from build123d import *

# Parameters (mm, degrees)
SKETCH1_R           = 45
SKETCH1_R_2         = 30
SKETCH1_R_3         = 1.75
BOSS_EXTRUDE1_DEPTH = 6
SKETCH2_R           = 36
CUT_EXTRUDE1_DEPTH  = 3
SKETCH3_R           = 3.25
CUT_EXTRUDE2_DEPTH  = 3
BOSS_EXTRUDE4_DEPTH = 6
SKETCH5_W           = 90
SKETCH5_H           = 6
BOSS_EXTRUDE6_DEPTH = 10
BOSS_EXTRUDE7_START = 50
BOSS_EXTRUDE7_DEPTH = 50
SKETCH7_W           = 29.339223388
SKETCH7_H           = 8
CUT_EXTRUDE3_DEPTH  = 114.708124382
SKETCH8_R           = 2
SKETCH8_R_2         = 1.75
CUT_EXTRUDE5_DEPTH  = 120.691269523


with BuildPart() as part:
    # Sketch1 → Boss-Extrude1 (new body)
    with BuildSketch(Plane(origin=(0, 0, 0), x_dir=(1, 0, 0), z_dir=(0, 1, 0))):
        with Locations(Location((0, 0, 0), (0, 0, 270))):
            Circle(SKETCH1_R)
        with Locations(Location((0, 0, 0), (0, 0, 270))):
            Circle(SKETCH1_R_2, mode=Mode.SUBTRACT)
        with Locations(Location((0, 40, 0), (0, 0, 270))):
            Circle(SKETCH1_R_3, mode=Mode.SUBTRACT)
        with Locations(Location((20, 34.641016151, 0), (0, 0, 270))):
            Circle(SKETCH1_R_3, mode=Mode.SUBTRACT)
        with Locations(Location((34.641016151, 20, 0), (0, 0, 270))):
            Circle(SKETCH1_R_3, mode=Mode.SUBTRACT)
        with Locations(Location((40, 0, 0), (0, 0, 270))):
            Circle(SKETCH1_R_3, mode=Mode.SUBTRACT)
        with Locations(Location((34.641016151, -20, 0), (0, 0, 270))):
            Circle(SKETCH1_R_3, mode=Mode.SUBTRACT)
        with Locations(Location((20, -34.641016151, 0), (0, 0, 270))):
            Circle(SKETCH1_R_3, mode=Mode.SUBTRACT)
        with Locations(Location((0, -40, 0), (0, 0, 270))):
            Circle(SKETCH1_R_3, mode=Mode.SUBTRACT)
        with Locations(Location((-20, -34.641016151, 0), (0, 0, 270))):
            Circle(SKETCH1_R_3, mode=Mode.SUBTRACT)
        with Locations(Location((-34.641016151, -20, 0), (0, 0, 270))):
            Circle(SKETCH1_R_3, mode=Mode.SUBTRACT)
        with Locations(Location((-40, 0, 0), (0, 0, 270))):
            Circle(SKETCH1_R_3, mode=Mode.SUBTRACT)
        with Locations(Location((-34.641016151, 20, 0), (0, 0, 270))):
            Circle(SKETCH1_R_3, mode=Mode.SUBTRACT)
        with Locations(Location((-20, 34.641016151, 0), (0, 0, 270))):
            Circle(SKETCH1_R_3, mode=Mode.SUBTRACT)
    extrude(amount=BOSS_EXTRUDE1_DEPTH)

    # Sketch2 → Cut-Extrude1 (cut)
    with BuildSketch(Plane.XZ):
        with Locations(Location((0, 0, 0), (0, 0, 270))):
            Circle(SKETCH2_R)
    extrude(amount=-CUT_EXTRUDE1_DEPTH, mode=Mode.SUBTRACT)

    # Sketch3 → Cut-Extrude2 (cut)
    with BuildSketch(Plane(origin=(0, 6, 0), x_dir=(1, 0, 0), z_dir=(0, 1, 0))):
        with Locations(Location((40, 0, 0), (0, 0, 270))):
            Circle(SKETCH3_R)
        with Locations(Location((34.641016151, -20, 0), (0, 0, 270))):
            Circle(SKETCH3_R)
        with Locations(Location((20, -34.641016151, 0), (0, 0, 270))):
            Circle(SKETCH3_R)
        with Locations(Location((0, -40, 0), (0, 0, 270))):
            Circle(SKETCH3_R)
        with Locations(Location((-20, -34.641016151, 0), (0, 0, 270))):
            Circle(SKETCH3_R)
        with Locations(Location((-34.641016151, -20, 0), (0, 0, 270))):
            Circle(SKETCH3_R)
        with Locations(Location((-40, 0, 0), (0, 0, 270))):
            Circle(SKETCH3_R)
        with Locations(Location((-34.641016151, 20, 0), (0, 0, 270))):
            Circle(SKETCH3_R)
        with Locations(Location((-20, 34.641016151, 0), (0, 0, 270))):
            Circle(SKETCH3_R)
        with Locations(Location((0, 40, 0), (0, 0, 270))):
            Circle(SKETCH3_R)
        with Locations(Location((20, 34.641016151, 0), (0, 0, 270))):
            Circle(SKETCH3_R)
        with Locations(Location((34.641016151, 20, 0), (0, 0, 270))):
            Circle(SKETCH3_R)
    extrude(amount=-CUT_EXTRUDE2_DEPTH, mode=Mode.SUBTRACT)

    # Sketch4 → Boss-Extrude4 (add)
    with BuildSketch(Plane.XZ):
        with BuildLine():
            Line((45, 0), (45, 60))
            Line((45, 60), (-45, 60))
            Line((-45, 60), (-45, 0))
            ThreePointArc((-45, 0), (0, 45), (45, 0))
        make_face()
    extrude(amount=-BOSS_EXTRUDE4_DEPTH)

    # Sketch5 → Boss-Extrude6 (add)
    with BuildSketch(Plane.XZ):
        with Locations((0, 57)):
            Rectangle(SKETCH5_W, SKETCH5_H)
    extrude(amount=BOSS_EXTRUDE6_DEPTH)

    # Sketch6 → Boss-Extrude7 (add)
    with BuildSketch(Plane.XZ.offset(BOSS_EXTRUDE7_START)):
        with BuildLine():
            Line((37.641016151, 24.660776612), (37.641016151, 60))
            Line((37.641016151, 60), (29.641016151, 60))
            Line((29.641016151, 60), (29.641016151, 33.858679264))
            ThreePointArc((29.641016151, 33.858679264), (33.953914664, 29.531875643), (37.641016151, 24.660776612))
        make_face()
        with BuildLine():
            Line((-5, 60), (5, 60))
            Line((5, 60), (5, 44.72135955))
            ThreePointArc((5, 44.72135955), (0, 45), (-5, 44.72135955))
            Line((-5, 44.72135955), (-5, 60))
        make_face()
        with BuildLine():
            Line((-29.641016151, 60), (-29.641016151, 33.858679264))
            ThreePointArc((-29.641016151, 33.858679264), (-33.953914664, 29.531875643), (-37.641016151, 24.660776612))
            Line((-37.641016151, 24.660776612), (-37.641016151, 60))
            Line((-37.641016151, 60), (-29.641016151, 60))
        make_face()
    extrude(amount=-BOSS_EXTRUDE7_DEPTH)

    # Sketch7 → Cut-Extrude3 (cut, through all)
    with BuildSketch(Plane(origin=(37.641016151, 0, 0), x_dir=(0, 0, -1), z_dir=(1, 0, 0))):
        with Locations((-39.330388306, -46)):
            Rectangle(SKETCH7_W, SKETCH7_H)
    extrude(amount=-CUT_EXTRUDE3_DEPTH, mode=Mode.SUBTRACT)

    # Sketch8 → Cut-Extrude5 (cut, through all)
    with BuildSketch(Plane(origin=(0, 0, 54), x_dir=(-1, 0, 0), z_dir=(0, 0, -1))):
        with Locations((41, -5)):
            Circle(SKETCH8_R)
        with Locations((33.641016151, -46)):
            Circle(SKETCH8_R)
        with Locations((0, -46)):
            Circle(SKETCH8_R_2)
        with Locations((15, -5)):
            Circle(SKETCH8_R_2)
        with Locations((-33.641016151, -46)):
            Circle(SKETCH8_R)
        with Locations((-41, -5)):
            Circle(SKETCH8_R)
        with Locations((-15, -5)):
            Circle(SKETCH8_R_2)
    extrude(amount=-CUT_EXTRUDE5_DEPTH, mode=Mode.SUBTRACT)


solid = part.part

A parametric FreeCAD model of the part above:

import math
import FreeCAD as App
import Part
import Sketcher

doc = App.newDocument("Part")
params = doc.addObject("Spreadsheet::Sheet", "Params")
for row, (alias, value) in enumerate([
    ("sketch1_diameter", "90 mm"),
    ("sketch1_diameter2", "60 mm"),
    ("sketch1_diameter3", "3.5 mm"),
    ("pad1_length", "6 mm"),
    ("sketch2_diameter", "72 mm"),
    ("pocket1_length", "3 mm"),
    ("sketch3_diameter", "6.5 mm"),
    ("pocket2_length", "3 mm"),
    ("sketch4_radius", "45 mm"),
    ("sketch4_height", "60 mm"),
    ("pad2_length", "6 mm"),
    ("sketch5_width", "90 mm"),
    ("sketch5_height", "6 mm"),
    ("pad3_length", "10 mm"),
    ("sketch6_radius", "45 mm"),
    ("sketch6_width", "8 mm"),
    ("sketch6_width2", "10 mm"),
    ("pad4_length", "50 mm"),
    ("sketch7_width", "8 mm"),
    ("sketch8_diameter", "4 mm"),
    ("sketch8_diameter2", "3.5 mm"),
], start=1):
    params.set(f"A{row}", alias)
    params.set(f"B{row}", "=" + value)
    params.setAlias(f"B{row}", alias)

body = doc.addObject("PartDesign::Body", "Body")

sketch1 = body.newObject("Sketcher::SketchObject", "Sketch")
sketch1.AttachmentSupport = (doc.getObject("XZ_Plane"), [""])
sketch1.MapMode = "FlatFace"
sketch1.addGeometry(Part.Circle(App.Vector(0, 0, 0), App.Vector(0, 0, 1), 45), False)
sketch1.addGeometry(Part.Circle(App.Vector(-34.641016, -20, 0), App.Vector(0, 0, 1), 1.75), False)
sketch1.addGeometry(Part.Circle(App.Vector(-20, -34.641016, 0), App.Vector(0, 0, 1), 1.75), False)
sketch1.addGeometry(Part.Circle(App.Vector(0, -40, 0), App.Vector(0, 0, 1), 1.75), False)
sketch1.addGeometry(Part.Circle(App.Vector(-40, 0, 0), App.Vector(0, 0, 1), 1.75), False)
sketch1.addGeometry(Part.Circle(App.Vector(-34.641016, 20, 0), App.Vector(0, 0, 1), 1.75), False)
sketch1.addGeometry(Part.Circle(App.Vector(-20, 34.641016, 0), App.Vector(0, 0, 1), 1.75), False)
sketch1.addGeometry(Part.Circle(App.Vector(20, -34.641016, 0), App.Vector(0, 0, 1), 1.75), False)
sketch1.addGeometry(Part.Circle(App.Vector(34.641016, -20, 0), App.Vector(0, 0, 1), 1.75), False)
sketch1.addGeometry(Part.Circle(App.Vector(40, 0, 0), App.Vector(0, 0, 1), 1.75), False)
sketch1.addGeometry(Part.Circle(App.Vector(0, 0, 0), App.Vector(0, 0, 1), 30), False)
sketch1.addGeometry(Part.Circle(App.Vector(0, 40, 0), App.Vector(0, 0, 1), 1.75), False)
sketch1.addGeometry(Part.Circle(App.Vector(20, 34.641016, 0), App.Vector(0, 0, 1), 1.75), False)
sketch1.addGeometry(Part.Circle(App.Vector(34.641016, 20, 0), App.Vector(0, 0, 1), 1.75), False)
sketch1.addConstraint(Sketcher.Constraint("Coincident", 0, 3, -1, 1))
sketch1.addConstraint(Sketcher.Constraint("Coincident", 10, 3, -1, 1))
sketch1.addConstraint(Sketcher.Constraint("Equal", 1, 2))
sketch1.addConstraint(Sketcher.Constraint("Equal", 2, 3))
sketch1.addConstraint(Sketcher.Constraint("Equal", 3, 4))
sketch1.addConstraint(Sketcher.Constraint("Equal", 4, 5))
sketch1.addConstraint(Sketcher.Constraint("Equal", 5, 6))
sketch1.addConstraint(Sketcher.Constraint("Equal", 6, 7))
sketch1.addConstraint(Sketcher.Constraint("Equal", 7, 8))
sketch1.addConstraint(Sketcher.Constraint("Equal", 8, 9))
sketch1.addConstraint(Sketcher.Constraint("Equal", 9, 11))
sketch1.addConstraint(Sketcher.Constraint("Equal", 11, 12))
sketch1.addConstraint(Sketcher.Constraint("Equal", 12, 13))
sketch1.addConstraint(Sketcher.Constraint("Symmetric", 6, 3, 7, 3, -1, 1))
sketch1.addConstraint(Sketcher.Constraint("Symmetric", 5, 3, 8, 3, -1, 1))
sketch1.addConstraint(Sketcher.Constraint("Symmetric", 4, 3, 9, 3, -1, 1))
sketch1.addConstraint(Sketcher.Constraint("Symmetric", 3, 3, 11, 3, -1, 1))
sketch1.addConstraint(Sketcher.Constraint("Symmetric", 2, 3, 12, 3, -1, 1))
sketch1.addConstraint(Sketcher.Constraint("Symmetric", 1, 3, 13, 3, -1, 1))
sketch1.addConstraint(Sketcher.Constraint("Symmetric", 2, 3, 7, 3, -2))
sketch1.addConstraint(Sketcher.Constraint("Symmetric", 1, 3, 8, 3, -2))
sketch1.addConstraint(Sketcher.Constraint("PointOnObject", 3, 3, -2))
sketch1.addConstraint(Sketcher.Constraint("PointOnObject", 4, 3, -1))
sketch1.addConstraint(Sketcher.Constraint("Diameter", 0, 90.0))
sketch1.addConstraint(Sketcher.Constraint("Diameter", 10, 60.0))
sketch1.addConstraint(Sketcher.Constraint("Diameter", 1, 3.5))
sketch1.addConstraint(Sketcher.Constraint("DistanceY", 1, 3, -1, 1, 20.0))
sketch1.addConstraint(Sketcher.Constraint("DistanceX", 2, 3, -1, 1, 20.0))
sketch1.addConstraint(Sketcher.Constraint("DistanceY", 3, 3, -1, 1, 40.0))
sketch1.addConstraint(Sketcher.Constraint("DistanceX", 4, 3, -1, 1, 40.0))
sketch1.addConstraint(Sketcher.Constraint("DistanceX", 1, 3, -1, 1, 34.641016))
sketch1.addConstraint(Sketcher.Constraint("DistanceY", 2, 3, -1, 1, 34.641016))
sketch1.setExpression("Constraints[23]", "Params.sketch1_diameter")
sketch1.setExpression("Constraints[24]", "Params.sketch1_diameter2")
sketch1.setExpression("Constraints[25]", "Params.sketch1_diameter3")
pad1 = body.newObject("PartDesign::Pad", "Pad")
pad1.Profile = sketch1
pad1.setExpression("Length", "Params.pad1_length")
pad1.Reversed = True

sketch2 = body.newObject("Sketcher::SketchObject", "Sketch001")
sketch2.AttachmentSupport = (doc.getObject("XZ_Plane"), [""])
sketch2.MapMode = "FlatFace"
sketch2.addGeometry(Part.Circle(App.Vector(0, 0, 0), App.Vector(0, 0, 1), 36), False)
sketch2.addConstraint(Sketcher.Constraint("Coincident", 0, 3, -1, 1))
sketch2.addConstraint(Sketcher.Constraint("Diameter", 0, 72.0))
sketch2.setExpression("Constraints[1]", "Params.sketch2_diameter")
pocket1 = body.newObject("PartDesign::Pocket", "Pocket")
pocket1.Profile = sketch2
pocket1.setExpression("Length", "Params.pocket1_length")

sketch3 = body.newObject("Sketcher::SketchObject", "Sketch002")
sketch3.AttachmentSupport = (doc.getObject("XZ_Plane"), [""])
sketch3.MapMode = "FlatFace"
sketch3.AttachmentOffset = App.Placement(App.Vector(0, 0, -6), App.Rotation())
sketch3.addGeometry(Part.Circle(App.Vector(40, 0, 0), App.Vector(0, 0, 1), 3.25), False)
sketch3.addGeometry(Part.Circle(App.Vector(34.641016, 20, 0), App.Vector(0, 0, 1), 3.25), False)
sketch3.addGeometry(Part.Circle(App.Vector(20, 34.641016, 0), App.Vector(0, 0, 1), 3.25), False)
sketch3.addGeometry(Part.Circle(App.Vector(0, 40, 0), App.Vector(0, 0, 1), 3.25), False)
sketch3.addGeometry(Part.Circle(App.Vector(-20, 34.641016, 0), App.Vector(0, 0, 1), 3.25), False)
sketch3.addGeometry(Part.Circle(App.Vector(-34.641016, 20, 0), App.Vector(0, 0, 1), 3.25), False)
sketch3.addGeometry(Part.Circle(App.Vector(-40, 0, 0), App.Vector(0, 0, 1), 3.25), False)
sketch3.addGeometry(Part.Circle(App.Vector(-34.641016, -20, 0), App.Vector(0, 0, 1), 3.25), False)
sketch3.addGeometry(Part.Circle(App.Vector(-20, -34.641016, 0), App.Vector(0, 0, 1), 3.25), False)
sketch3.addGeometry(Part.Circle(App.Vector(0, -40, 0), App.Vector(0, 0, 1), 3.25), False)
sketch3.addGeometry(Part.Circle(App.Vector(20, -34.641016, 0), App.Vector(0, 0, 1), 3.25), False)
sketch3.addGeometry(Part.Circle(App.Vector(34.641016, -20, 0), App.Vector(0, 0, 1), 3.25), False)
sketch3.addConstraint(Sketcher.Constraint("Equal", 0, 1))
sketch3.addConstraint(Sketcher.Constraint("Equal", 1, 2))
sketch3.addConstraint(Sketcher.Constraint("Equal", 2, 3))
sketch3.addConstraint(Sketcher.Constraint("Equal", 3, 4))
sketch3.addConstraint(Sketcher.Constraint("Equal", 4, 5))
sketch3.addConstraint(Sketcher.Constraint("Equal", 5, 6))
sketch3.addConstraint(Sketcher.Constraint("Equal", 6, 7))
sketch3.addConstraint(Sketcher.Constraint("Equal", 7, 8))
sketch3.addConstraint(Sketcher.Constraint("Equal", 8, 9))
sketch3.addConstraint(Sketcher.Constraint("Equal", 9, 10))
sketch3.addConstraint(Sketcher.Constraint("Equal", 10, 11))
sketch3.addConstraint(Sketcher.Constraint("Symmetric", 0, 3, 6, 3, -1, 1))
sketch3.addConstraint(Sketcher.Constraint("Symmetric", 1, 3, 7, 3, -1, 1))
sketch3.addConstraint(Sketcher.Constraint("Symmetric", 2, 3, 8, 3, -1, 1))
sketch3.addConstraint(Sketcher.Constraint("Symmetric", 3, 3, 9, 3, -1, 1))
sketch3.addConstraint(Sketcher.Constraint("Symmetric", 4, 3, 10, 3, -1, 1))
sketch3.addConstraint(Sketcher.Constraint("Symmetric", 5, 3, 11, 3, -1, 1))
sketch3.addConstraint(Sketcher.Constraint("Symmetric", 2, 3, 4, 3, -2))
sketch3.addConstraint(Sketcher.Constraint("Symmetric", 1, 3, 5, 3, -2))
sketch3.addConstraint(Sketcher.Constraint("PointOnObject", 0, 3, -1))
sketch3.addConstraint(Sketcher.Constraint("PointOnObject", 3, 3, -2))
sketch3.addConstraint(Sketcher.Constraint("Diameter", 0, 6.5))
sketch3.addConstraint(Sketcher.Constraint("DistanceX", -1, 1, 0, 3, 40.0))
sketch3.addConstraint(Sketcher.Constraint("DistanceY", -1, 1, 1, 3, 20.0))
sketch3.addConstraint(Sketcher.Constraint("DistanceX", -1, 1, 2, 3, 20.0))
sketch3.addConstraint(Sketcher.Constraint("DistanceY", -1, 1, 3, 3, 40.0))
sketch3.addConstraint(Sketcher.Constraint("DistanceX", -1, 1, 1, 3, 34.641016))
sketch3.addConstraint(Sketcher.Constraint("DistanceY", -1, 1, 2, 3, 34.641016))
sketch3.setExpression("Constraints[21]", "Params.sketch3_diameter")
pocket2 = body.newObject("PartDesign::Pocket", "Pocket001")
pocket2.Profile = sketch3
pocket2.setExpression("Length", "Params.pocket2_length")
pocket2.Reversed = True

sketch4 = body.newObject("Sketcher::SketchObject", "Sketch003")
sketch4.AttachmentSupport = (doc.getObject("XZ_Plane"), [""])
sketch4.MapMode = "FlatFace"
sketch4.addGeometry(Part.LineSegment(App.Vector(45, 0, 0), App.Vector(45, 60, 0)), False)
sketch4.addGeometry(Part.LineSegment(App.Vector(45, 60, 0), App.Vector(-45, 60, 0)), False)
sketch4.addGeometry(Part.LineSegment(App.Vector(-45, 60, 0), App.Vector(-45, 0, 0)), False)
sketch4.addGeometry(Part.ArcOfCircle(Part.Circle(App.Vector(0, 0, 0), App.Vector(0, 0, 1), 45), math.radians(0), math.radians(180)), False)
sketch4.addConstraint(Sketcher.Constraint("Coincident", 0, 2, 1, 1))
sketch4.addConstraint(Sketcher.Constraint("Coincident", 1, 2, 2, 1))
sketch4.addConstraint(Sketcher.Constraint("Tangent", 2, 2, 3, 2))
sketch4.addConstraint(Sketcher.Constraint("Tangent", 3, 1, 0, 1))
sketch4.addConstraint(Sketcher.Constraint("Vertical", 0))
sketch4.addConstraint(Sketcher.Constraint("Horizontal", 1))
sketch4.addConstraint(Sketcher.Constraint("Vertical", 2))
sketch4.addConstraint(Sketcher.Constraint("Coincident", 3, 3, -1, 1))
sketch4.addConstraint(Sketcher.Constraint("Radius", 3, 45.0))
sketch4.addConstraint(Sketcher.Constraint("DistanceY", 0, 1, 0, 2, 60.0))
sketch4.setExpression("Constraints[8]", "Params.sketch4_radius")
sketch4.setExpression("Constraints[9]", "Params.sketch4_height")
pad2 = body.newObject("PartDesign::Pad", "Pad001")
pad2.Profile = sketch4
pad2.setExpression("Length", "Params.pad2_length")
pad2.Reversed = True

sketch5 = body.newObject("Sketcher::SketchObject", "Sketch004")
sketch5.AttachmentSupport = (doc.getObject("XZ_Plane"), [""])
sketch5.MapMode = "FlatFace"
sketch5.addGeometry(Part.LineSegment(App.Vector(-45, 60, 0), App.Vector(-45, 54, 0)), False)
sketch5.addGeometry(Part.LineSegment(App.Vector(-45, 54, 0), App.Vector(45, 54, 0)), False)
sketch5.addGeometry(Part.LineSegment(App.Vector(45, 54, 0), App.Vector(45, 60, 0)), False)
sketch5.addGeometry(Part.LineSegment(App.Vector(45, 60, 0), App.Vector(-45, 60, 0)), False)
sketch5.addConstraint(Sketcher.Constraint("Coincident", 0, 2, 1, 1))
sketch5.addConstraint(Sketcher.Constraint("Coincident", 1, 2, 2, 1))
sketch5.addConstraint(Sketcher.Constraint("Coincident", 2, 2, 3, 1))
sketch5.addConstraint(Sketcher.Constraint("Coincident", 3, 2, 0, 1))
sketch5.addConstraint(Sketcher.Constraint("Vertical", 0))
sketch5.addConstraint(Sketcher.Constraint("Horizontal", 1))
sketch5.addConstraint(Sketcher.Constraint("Vertical", 2))
sketch5.addConstraint(Sketcher.Constraint("Horizontal", 3))
sketch5.addConstraint(Sketcher.Constraint("DistanceX", 1, 1, 1, 2, 90.0))
sketch5.addConstraint(Sketcher.Constraint("DistanceY", 0, 2, 0, 1, 6.0))
sketch5.addConstraint(Sketcher.Constraint("DistanceX", 0, 2, -1, 1, 45.0))
sketch5.addConstraint(Sketcher.Constraint("DistanceY", -1, 1, 0, 2, 54.0))
sketch5.setExpression("Constraints[8]", "Params.sketch5_width")
sketch5.setExpression("Constraints[9]", "Params.sketch5_height")
pad3 = body.newObject("PartDesign::Pad", "Pad002")
pad3.Profile = sketch5
pad3.setExpression("Length", "Params.pad3_length")

sketch6 = body.newObject("Sketcher::SketchObject", "Sketch005")
sketch6.AttachmentSupport = (doc.getObject("XZ_Plane"), [""])
sketch6.MapMode = "FlatFace"
sketch6.AttachmentOffset = App.Placement(App.Vector(0, 0, 50), App.Rotation())
sketch6.addGeometry(Part.LineSegment(App.Vector(37.641016, 24.660777, 0), App.Vector(37.641016, 60, 0)), False)
sketch6.addGeometry(Part.LineSegment(App.Vector(37.641016, 60, 0), App.Vector(29.641016, 60, 0)), False)
sketch6.addGeometry(Part.LineSegment(App.Vector(29.641016, 60, 0), App.Vector(29.641016, 33.858679, 0)), False)
sketch6.addGeometry(Part.ArcOfCircle(Part.Circle(App.Vector(0, 0, 0), App.Vector(0, 0, 1), 45), math.radians(33.231095), math.radians(48.800016)), False)
sketch6.addGeometry(Part.LineSegment(App.Vector(5, 60, 0), App.Vector(-5, 60, 0)), False)
sketch6.addGeometry(Part.LineSegment(App.Vector(-5, 60, 0), App.Vector(-5, 44.72136, 0)), False)
sketch6.addGeometry(Part.ArcOfCircle(Part.Circle(App.Vector(0, 0, 0), App.Vector(0, 0, 1), 45), math.radians(83.62063), math.radians(96.37937)), False)
sketch6.addGeometry(Part.LineSegment(App.Vector(5, 44.72136, 0), App.Vector(5, 60, 0)), False)
sketch6.addGeometry(Part.LineSegment(App.Vector(-29.641016, 33.858679, 0), App.Vector(-29.641016, 60, 0)), False)
sketch6.addGeometry(Part.LineSegment(App.Vector(-29.641016, 60, 0), App.Vector(-37.641016, 60, 0)), False)
sketch6.addGeometry(Part.LineSegment(App.Vector(-37.641016, 60, 0), App.Vector(-37.641016, 24.660777, 0)), False)
sketch6.addGeometry(Part.ArcOfCircle(Part.Circle(App.Vector(0, 0, 0), App.Vector(0, 0, 1), 45), math.radians(131.199984), math.radians(146.768905)), False)
sketch6.addConstraint(Sketcher.Constraint("Coincident", 0, 2, 1, 1))
sketch6.addConstraint(Sketcher.Constraint("Coincident", 1, 2, 2, 1))
sketch6.addConstraint(Sketcher.Constraint("Coincident", 2, 2, 3, 2))
sketch6.addConstraint(Sketcher.Constraint("Coincident", 3, 1, 0, 1))
sketch6.addConstraint(Sketcher.Constraint("Coincident", 4, 2, 5, 1))
sketch6.addConstraint(Sketcher.Constraint("Coincident", 5, 2, 6, 2))
sketch6.addConstraint(Sketcher.Constraint("Coincident", 6, 1, 7, 1))
sketch6.addConstraint(Sketcher.Constraint("Coincident", 7, 2, 4, 1))
sketch6.addConstraint(Sketcher.Constraint("Coincident", 8, 2, 9, 1))
sketch6.addConstraint(Sketcher.Constraint("Coincident", 9, 2, 10, 1))
sketch6.addConstraint(Sketcher.Constraint("Coincident", 10, 2, 11, 2))
sketch6.addConstraint(Sketcher.Constraint("Coincident", 11, 1, 8, 1))
sketch6.addConstraint(Sketcher.Constraint("Vertical", 0))
sketch6.addConstraint(Sketcher.Constraint("Horizontal", 1))
sketch6.addConstraint(Sketcher.Constraint("Vertical", 2))
sketch6.addConstraint(Sketcher.Constraint("Horizontal", 4))
sketch6.addConstraint(Sketcher.Constraint("Vertical", 5))
sketch6.addConstraint(Sketcher.Constraint("Vertical", 7))
sketch6.addConstraint(Sketcher.Constraint("Vertical", 8))
sketch6.addConstraint(Sketcher.Constraint("Horizontal", 9))
sketch6.addConstraint(Sketcher.Constraint("Vertical", 10))
sketch6.addConstraint(Sketcher.Constraint("Coincident", 3, 3, -1, 1))
sketch6.addConstraint(Sketcher.Constraint("Coincident", 6, 3, -1, 1))
sketch6.addConstraint(Sketcher.Constraint("Coincident", 11, 3, -1, 1))
sketch6.addConstraint(Sketcher.Constraint("Equal", 3, 6))
sketch6.addConstraint(Sketcher.Constraint("Equal", 6, 11))
sketch6.addConstraint(Sketcher.Constraint("Symmetric", 1, 2, 8, 2, -2))
sketch6.addConstraint(Sketcher.Constraint("Horizontal", 1, 2, 4, 2))
sketch6.addConstraint(Sketcher.Constraint("Horizontal", 5, 2, 6, 1))
sketch6.addConstraint(Sketcher.Constraint("Horizontal", 3, 1, 10, 2))
sketch6.addConstraint(Sketcher.Constraint("Radius", 3, 45.0))
sketch6.addConstraint(Sketcher.Constraint("DistanceX", 1, 2, 1, 1, 8.0))
sketch6.addConstraint(Sketcher.Constraint("DistanceX", 4, 2, 4, 1, 10.0))
sketch6.addConstraint(Sketcher.Constraint("DistanceY", -1, 1, 0, 2, 60.0))
sketch6.addConstraint(Sketcher.Constraint("DistanceY", 2, 2, 2, 1, 26.141321))
sketch6.setExpression("Constraints[30]", "Params.sketch6_radius")
sketch6.setExpression("Constraints[31]", "Params.sketch6_width")
sketch6.setExpression("Constraints[32]", "Params.sketch6_width2")
pad4 = body.newObject("PartDesign::Pad", "Pad003")
pad4.Profile = sketch6
pad4.setExpression("Length", "Params.pad4_length")
pad4.Reversed = True

sketch7 = body.newObject("Sketcher::SketchObject", "Sketch006")
sketch7.AttachmentSupport = (doc.getObject("YZ_Plane"), [""])
sketch7.MapMode = "FlatFace"
sketch7.AttachmentOffset = App.Placement(App.Vector(0, 0, 37.641016), App.Rotation())
sketch7.addGeometry(Part.LineSegment(App.Vector(-42, 54, 0), App.Vector(-50, 54, 0)), False)
sketch7.addGeometry(Part.LineSegment(App.Vector(-50, 54, 0), App.Vector(-50, 24.660777, 0)), False)
sketch7.addGeometry(Part.LineSegment(App.Vector(-50, 24.660777, 0), App.Vector(-42, 24.660777, 0)), False)
sketch7.addGeometry(Part.LineSegment(App.Vector(-42, 24.660777, 0), App.Vector(-42, 54, 0)), False)
sketch7.addConstraint(Sketcher.Constraint("Coincident", 0, 2, 1, 1))
sketch7.addConstraint(Sketcher.Constraint("Coincident", 1, 2, 2, 1))
sketch7.addConstraint(Sketcher.Constraint("Coincident", 2, 2, 3, 1))
sketch7.addConstraint(Sketcher.Constraint("Coincident", 3, 2, 0, 1))
sketch7.addConstraint(Sketcher.Constraint("Horizontal", 0))
sketch7.addConstraint(Sketcher.Constraint("Vertical", 1))
sketch7.addConstraint(Sketcher.Constraint("Horizontal", 2))
sketch7.addConstraint(Sketcher.Constraint("Vertical", 3))
sketch7.addConstraint(Sketcher.Constraint("DistanceX", 0, 2, 0, 1, 8.0))
sketch7.addConstraint(Sketcher.Constraint("DistanceX", 0, 2, -1, 1, 50.0))
sketch7.addConstraint(Sketcher.Constraint("DistanceY", -1, 1, 0, 2, 54.0))
sketch7.addConstraint(Sketcher.Constraint("DistanceY", 1, 2, 1, 1, 29.339223))
sketch7.setExpression("Constraints[8]", "Params.sketch7_width")
pocket3 = body.newObject("PartDesign::Pocket", "Pocket002")
pocket3.Profile = sketch7
pocket3.Type = "ThroughAll"

sketch8 = body.newObject("Sketcher::SketchObject", "Sketch007")
sketch8.AttachmentSupport = (doc.getObject("XY_Plane"), [""])
sketch8.MapMode = "FlatFace"
sketch8.AttachmentOffset = App.Placement(App.Vector(0, 0, 54), App.Rotation())
sketch8.addGeometry(Part.Circle(App.Vector(-41, -5, 0), App.Vector(0, 0, 1), 2), False)
sketch8.addGeometry(Part.Circle(App.Vector(-33.641016, -46, 0), App.Vector(0, 0, 1), 2), False)
sketch8.addGeometry(Part.Circle(App.Vector(0, -46, 0), App.Vector(0, 0, 1), 1.75), False)
sketch8.addGeometry(Part.Circle(App.Vector(-15, -5, 0), App.Vector(0, 0, 1), 1.75), False)
sketch8.addGeometry(Part.Circle(App.Vector(33.641016, -46, 0), App.Vector(0, 0, 1), 2), False)
sketch8.addGeometry(Part.Circle(App.Vector(41, -5, 0), App.Vector(0, 0, 1), 2), False)
sketch8.addGeometry(Part.Circle(App.Vector(15, -5, 0), App.Vector(0, 0, 1), 1.75), False)
sketch8.addConstraint(Sketcher.Constraint("Equal", 0, 1))
sketch8.addConstraint(Sketcher.Constraint("Equal", 2, 3))
sketch8.addConstraint(Sketcher.Constraint("Equal", 1, 4))
sketch8.addConstraint(Sketcher.Constraint("Equal", 4, 5))
sketch8.addConstraint(Sketcher.Constraint("Equal", 3, 6))
sketch8.addConstraint(Sketcher.Constraint("Symmetric", 1, 3, 4, 3, -2))
sketch8.addConstraint(Sketcher.Constraint("Symmetric", 0, 3, 5, 3, -2))
sketch8.addConstraint(Sketcher.Constraint("Symmetric", 3, 3, 6, 3, -2))
sketch8.addConstraint(Sketcher.Constraint("PointOnObject", 2, 3, -2))
sketch8.addConstraint(Sketcher.Constraint("Horizontal", 1, 3, 2, 3))
sketch8.addConstraint(Sketcher.Constraint("Horizontal", 0, 3, 3, 3))
sketch8.addConstraint(Sketcher.Constraint("Diameter", 0, 4.0))
sketch8.addConstraint(Sketcher.Constraint("Diameter", 2, 3.5))
sketch8.addConstraint(Sketcher.Constraint("DistanceX", 0, 3, -1, 1, 41.0))
sketch8.addConstraint(Sketcher.Constraint("DistanceY", 0, 3, -1, 1, 5.0))
sketch8.addConstraint(Sketcher.Constraint("DistanceY", 1, 3, -1, 1, 46.0))
sketch8.addConstraint(Sketcher.Constraint("DistanceX", 3, 3, -1, 1, 15.0))
sketch8.addConstraint(Sketcher.Constraint("DistanceX", 1, 3, -1, 1, 33.641016))
sketch8.setExpression("Constraints[11]", "Params.sketch8_diameter")
sketch8.setExpression("Constraints[12]", "Params.sketch8_diameter2")
pocket4 = body.newObject("PartDesign::Pocket", "Pocket003")
pocket4.Profile = sketch8
pocket4.Type = "ThroughAll"
pocket4.Reversed = True

doc.recompute()
